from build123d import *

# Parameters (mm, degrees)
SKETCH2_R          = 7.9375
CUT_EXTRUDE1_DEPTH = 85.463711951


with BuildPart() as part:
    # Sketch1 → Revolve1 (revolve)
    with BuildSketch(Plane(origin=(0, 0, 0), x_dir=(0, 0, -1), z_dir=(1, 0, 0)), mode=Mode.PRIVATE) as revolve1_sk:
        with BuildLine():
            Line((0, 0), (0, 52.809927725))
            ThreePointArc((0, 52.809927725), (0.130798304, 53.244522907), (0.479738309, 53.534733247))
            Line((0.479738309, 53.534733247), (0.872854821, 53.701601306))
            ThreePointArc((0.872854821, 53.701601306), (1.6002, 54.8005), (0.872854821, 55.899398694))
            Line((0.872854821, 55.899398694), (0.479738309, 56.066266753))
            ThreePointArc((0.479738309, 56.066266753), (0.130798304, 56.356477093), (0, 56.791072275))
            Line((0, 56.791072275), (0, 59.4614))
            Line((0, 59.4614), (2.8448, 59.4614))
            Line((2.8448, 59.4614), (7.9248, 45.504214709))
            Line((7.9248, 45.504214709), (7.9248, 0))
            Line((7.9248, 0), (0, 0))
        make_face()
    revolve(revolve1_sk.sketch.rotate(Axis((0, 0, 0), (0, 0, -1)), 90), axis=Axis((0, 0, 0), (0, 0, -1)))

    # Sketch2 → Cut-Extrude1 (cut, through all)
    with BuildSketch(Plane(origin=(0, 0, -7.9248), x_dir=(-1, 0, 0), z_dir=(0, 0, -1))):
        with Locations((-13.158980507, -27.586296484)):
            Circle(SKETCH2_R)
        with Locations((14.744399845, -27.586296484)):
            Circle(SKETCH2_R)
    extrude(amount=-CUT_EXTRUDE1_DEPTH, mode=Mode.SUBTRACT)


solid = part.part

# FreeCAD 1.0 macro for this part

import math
import FreeCAD as App
import Part
import Sketcher
Q = App.Units.Quantity

doc = App.newDocument("Part")
body = doc.addObject("PartDesign::Body", "Body")

# Sketch on YZ plane
sketch1 = doc.addObject("Sketcher::SketchObject", "Sketch")
body.addObject(sketch1)
sketch1.AttachmentSupport = (doc.YZ_Plane, [""])
sketch1.MapMode = "FlatFace"
sketch1.addGeometry(Part.LineSegment(App.Vector(52.81, 0, 0), App.Vector(0, 0, 0)), False)
sketch1.addGeometry(Part.LineSegment(App.Vector(0, 0, 0), App.Vector(0, -7.92, 0)), False)
sketch1.addGeometry(Part.LineSegment(App.Vector(0, -7.92, 0), App.Vector(45.5, -7.92, 0)), False)
sketch1.addGeometry(Part.LineSegment(App.Vector(45.5, -7.92, 0), App.Vector(59.46, -2.84, 0)), False)
sketch1.addGeometry(Part.LineSegment(App.Vector(59.46, -2.84, 0), App.Vector(59.46, 0, 0)), False)
sketch1.addGeometry(Part.LineSegment(App.Vector(59.46, 0, 0), App.Vector(56.79, 0, 0)), False)
sketch1.addGeometry(Part.ArcOfCircle(Part.Circle(App.Vector(56.79, -0.79, 0), App.Vector(0, 0, 1), 0.79), math.radians(90), math.radians(157)), False)
sketch1.addGeometry(Part.LineSegment(App.Vector(56.07, -0.48, 0), App.Vector(55.9, -0.87, 0)), False)
sketch1.addGeometry(Part.ArcOfCircle(Part.Circle(App.Vector(54.8, -0.41, 0), App.Vector(0, 0, 1), 1.19), math.radians(-157), math.radians(-23)), False)
sketch1.addGeometry(Part.LineSegment(App.Vector(53.7, -0.87, 0), App.Vector(53.53, -0.48, 0)), False)
sketch1.addGeometry(Part.ArcOfCircle(Part.Circle(App.Vector(52.81, -0.79, 0), App.Vector(0, 0, 1), 0.79), math.radians(23), math.radians(90)), False)
sketch1.addConstraint(Sketcher.Constraint("Coincident", 0, 2, 1, 1))
sketch1.addConstraint(Sketcher.Constraint("Coincident", 1, 2, 2, 1))
sketch1.addConstraint(Sketcher.Constraint("Coincident", 2, 2, 3, 1))
sketch1.addConstraint(Sketcher.Constraint("Coincident", 3, 2, 4, 1))
sketch1.addConstraint(Sketcher.Constraint("Coincident", 4, 2, 5, 1))
sketch1.addConstraint(Sketcher.Constraint("Tangent", 5, 2, 6, 1))
sketch1.addConstraint(Sketcher.Constraint("Tangent", 6, 2, 7, 1))
sketch1.addConstraint(Sketcher.Constraint("Tangent", 7, 2, 8, 2))
sketch1.addConstraint(Sketcher.Constraint("Tangent", 8, 1, 9, 1))
sketch1.addConstraint(Sketcher.Constraint("Tangent", 9, 2, 10, 1))
sketch1.addConstraint(Sketcher.Constraint("Tangent", 10, 2, 0, 1))
sketch1.addConstraint(Sketcher.Constraint("Horizontal", 0))
sketch1.addConstraint(Sketcher.Constraint("Vertical", 1))
sketch1.addConstraint(Sketcher.Constraint("Horizontal", 2))
sketch1.addConstraint(Sketcher.Constraint("Vertical", 4))
sketch1.addConstraint(Sketcher.Constraint("Horizontal", 5))
sketch1.addConstraint(Sketcher.Constraint("Coincident", 0, 2, -1, 1))
sketch1.addConstraint(Sketcher.Constraint("Equal", 6, 10))
sketch1.addConstraint(Sketcher.Constraint("PointOnObject", 4, 2, -1))
sketch1.addConstraint(Sketcher.Constraint("Horizontal", 7, 2, 8, 1))
sketch1.addConstraint(Sketcher.Constraint("Angle", 3, Q("20 deg")))
sketch1.addConstraint(Sketcher.Constraint("Angle", 7, Q("-113 deg")))
sketch1.addConstraint(Sketcher.Constraint("Radius", 6, Q("0.031 in")))
sketch1.addConstraint(Sketcher.Constraint("Radius", 8, Q("0.047 in")))
sketch1.addConstraint(Sketcher.Constraint("DistanceY", 2, 2, 3, 2, Q("0.2 in")))
sketch1.addConstraint(Sketcher.Constraint("DistanceY", 1, 2, 1, 1, Q("0.312 in")))
sketch1.addConstraint(Sketcher.Constraint("DistanceY", 8, 3, -1, 1, Q("0.016 in")))
sketch1.addConstraint(Sketcher.Constraint("DistanceX", -1, 1, 3, 2, Q("2.341 in")))
sketch1.addConstraint(Sketcher.Constraint("DistanceX", -1, 1, 8, 3, Q("2.1575 in")))
revolution = doc.addObject("PartDesign::Revolution", "Revolution")
body.addObject(revolution)
revolution.Profile = sketch1
revolution.ReferenceAxis = (sketch1, ["V_Axis"])
revolution.Angle = 360

# Sketch on XY plane
sketch2 = doc.addObject("Sketcher::SketchObject", "Sketch001")
body.addObject(sketch2)
sketch2.AttachmentSupport = (doc.XY_Plane, [""])
sketch2.MapMode = "FlatFace"
sketch2.AttachmentOffset = App.Placement(App.Vector(0, 0, -0.312 * 25.4), App.Rotation())
sketch2.addGeometry(Part.Circle(App.Vector(13, -28, 0), App.Vector(0, 0, 1), 8), False)
sketch2.addGeometry(Part.Circle(App.Vector(-15, -28, 0), App.Vector(0, 0, 1), 8), False)
sketch2.addConstraint(Sketcher.Constraint("Equal", 0, 1))
sketch2.addConstraint(Sketcher.Constraint("Horizontal", 0, 3, 1, 3))
sketch2.addConstraint(Sketcher.Constraint("Diameter", 0, Q("0.625 in")))
sketch2.addConstraint(Sketcher.Constraint("DistanceX", 1, 3, -1, 1, 14.7444))
sketch2.addConstraint(Sketcher.Constraint("DistanceX", -1, 1, 0, 3, 13.158981))
sketch2.addConstraint(Sketcher.Constraint("DistanceY", 0, 3, -1, 1, 27.586296))
pocket1 = doc.addObject("PartDesign::Pocket", "Pocket")
body.addObject(pocket1)
pocket1.Profile = sketch2
pocket1.Type = "ThroughAll"
pocket1.Reversed = True

doc.recompute()
